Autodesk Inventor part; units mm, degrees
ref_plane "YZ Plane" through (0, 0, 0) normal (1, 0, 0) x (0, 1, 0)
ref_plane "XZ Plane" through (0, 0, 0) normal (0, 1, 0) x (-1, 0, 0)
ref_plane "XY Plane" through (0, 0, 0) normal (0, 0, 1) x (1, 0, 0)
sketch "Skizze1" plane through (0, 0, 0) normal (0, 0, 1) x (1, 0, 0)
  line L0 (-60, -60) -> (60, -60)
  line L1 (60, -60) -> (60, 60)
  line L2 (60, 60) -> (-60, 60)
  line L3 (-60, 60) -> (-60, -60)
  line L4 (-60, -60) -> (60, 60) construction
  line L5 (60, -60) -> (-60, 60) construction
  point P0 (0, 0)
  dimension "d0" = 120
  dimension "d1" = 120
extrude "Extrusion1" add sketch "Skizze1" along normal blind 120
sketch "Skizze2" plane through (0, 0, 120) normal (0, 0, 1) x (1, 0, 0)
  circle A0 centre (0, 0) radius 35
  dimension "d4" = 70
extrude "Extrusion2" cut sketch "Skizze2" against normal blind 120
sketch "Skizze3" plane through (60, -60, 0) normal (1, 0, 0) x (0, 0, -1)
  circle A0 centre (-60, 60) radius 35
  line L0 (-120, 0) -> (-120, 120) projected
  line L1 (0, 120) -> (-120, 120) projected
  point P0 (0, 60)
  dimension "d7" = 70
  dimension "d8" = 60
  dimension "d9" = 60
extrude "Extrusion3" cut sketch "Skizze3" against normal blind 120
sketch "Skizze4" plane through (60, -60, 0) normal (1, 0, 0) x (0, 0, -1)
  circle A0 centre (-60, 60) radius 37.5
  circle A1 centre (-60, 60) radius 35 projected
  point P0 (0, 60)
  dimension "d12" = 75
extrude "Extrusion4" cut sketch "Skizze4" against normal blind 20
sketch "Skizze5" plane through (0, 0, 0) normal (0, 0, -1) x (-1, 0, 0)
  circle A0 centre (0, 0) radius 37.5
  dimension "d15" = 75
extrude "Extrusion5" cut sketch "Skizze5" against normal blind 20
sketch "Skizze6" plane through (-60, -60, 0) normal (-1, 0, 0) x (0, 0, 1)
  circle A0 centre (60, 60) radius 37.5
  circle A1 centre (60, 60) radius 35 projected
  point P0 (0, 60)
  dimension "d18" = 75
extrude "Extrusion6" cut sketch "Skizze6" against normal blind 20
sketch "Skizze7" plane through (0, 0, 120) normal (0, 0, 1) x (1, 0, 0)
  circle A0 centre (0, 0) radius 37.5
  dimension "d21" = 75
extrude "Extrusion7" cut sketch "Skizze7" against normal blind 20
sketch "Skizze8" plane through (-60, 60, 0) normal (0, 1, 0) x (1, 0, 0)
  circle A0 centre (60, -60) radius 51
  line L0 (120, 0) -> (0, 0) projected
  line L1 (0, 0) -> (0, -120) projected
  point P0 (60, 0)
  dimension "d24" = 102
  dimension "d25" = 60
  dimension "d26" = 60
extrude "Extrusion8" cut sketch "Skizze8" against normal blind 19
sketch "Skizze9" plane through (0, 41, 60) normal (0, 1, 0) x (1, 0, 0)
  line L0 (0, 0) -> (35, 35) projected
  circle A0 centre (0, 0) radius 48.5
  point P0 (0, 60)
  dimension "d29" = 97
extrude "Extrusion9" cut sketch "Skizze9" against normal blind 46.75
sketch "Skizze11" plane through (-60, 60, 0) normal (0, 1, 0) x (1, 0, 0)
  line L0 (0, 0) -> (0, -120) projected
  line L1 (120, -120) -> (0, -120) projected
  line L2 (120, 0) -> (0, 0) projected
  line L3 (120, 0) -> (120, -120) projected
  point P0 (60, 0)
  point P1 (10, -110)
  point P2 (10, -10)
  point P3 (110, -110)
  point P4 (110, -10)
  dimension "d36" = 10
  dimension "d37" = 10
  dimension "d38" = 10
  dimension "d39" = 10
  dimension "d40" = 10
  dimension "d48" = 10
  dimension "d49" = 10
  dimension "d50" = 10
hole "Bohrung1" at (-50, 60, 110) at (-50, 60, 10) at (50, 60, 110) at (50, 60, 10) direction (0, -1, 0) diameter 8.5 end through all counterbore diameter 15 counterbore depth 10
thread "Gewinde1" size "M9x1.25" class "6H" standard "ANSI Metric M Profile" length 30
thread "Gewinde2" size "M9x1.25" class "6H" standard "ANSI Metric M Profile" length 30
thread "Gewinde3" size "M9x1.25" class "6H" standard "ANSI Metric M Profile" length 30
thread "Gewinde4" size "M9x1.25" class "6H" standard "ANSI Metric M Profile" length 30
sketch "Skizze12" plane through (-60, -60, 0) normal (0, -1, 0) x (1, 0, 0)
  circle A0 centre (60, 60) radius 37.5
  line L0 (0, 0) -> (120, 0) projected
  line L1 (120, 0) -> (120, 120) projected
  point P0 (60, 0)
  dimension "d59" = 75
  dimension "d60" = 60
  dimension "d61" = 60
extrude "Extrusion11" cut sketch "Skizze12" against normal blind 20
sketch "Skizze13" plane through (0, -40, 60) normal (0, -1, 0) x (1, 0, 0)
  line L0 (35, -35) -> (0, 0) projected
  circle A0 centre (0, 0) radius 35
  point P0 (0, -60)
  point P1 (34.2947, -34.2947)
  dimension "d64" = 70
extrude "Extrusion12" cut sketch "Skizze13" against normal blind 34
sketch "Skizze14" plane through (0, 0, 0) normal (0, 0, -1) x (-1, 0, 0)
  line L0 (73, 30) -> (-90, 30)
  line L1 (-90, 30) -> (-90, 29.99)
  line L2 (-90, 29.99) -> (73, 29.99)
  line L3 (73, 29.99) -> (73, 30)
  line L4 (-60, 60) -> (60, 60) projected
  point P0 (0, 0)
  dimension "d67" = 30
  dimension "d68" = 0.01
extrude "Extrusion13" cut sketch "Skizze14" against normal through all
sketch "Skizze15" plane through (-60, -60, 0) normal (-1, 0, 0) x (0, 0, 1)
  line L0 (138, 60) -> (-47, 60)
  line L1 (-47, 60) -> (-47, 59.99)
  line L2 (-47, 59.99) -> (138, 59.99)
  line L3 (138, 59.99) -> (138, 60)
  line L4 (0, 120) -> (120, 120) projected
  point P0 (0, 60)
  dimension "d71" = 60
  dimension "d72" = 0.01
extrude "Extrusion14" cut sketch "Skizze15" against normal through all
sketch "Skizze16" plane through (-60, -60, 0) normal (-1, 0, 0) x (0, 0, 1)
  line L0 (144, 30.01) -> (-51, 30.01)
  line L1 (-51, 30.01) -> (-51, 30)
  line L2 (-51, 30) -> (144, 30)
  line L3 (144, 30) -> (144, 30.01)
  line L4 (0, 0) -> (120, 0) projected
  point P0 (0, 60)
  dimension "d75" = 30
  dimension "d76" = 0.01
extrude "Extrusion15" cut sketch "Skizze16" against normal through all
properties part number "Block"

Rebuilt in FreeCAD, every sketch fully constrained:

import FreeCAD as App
import Part
import Sketcher

V = App.Vector


def add_polygon(sketch, points):
    """Adds a closed chain of lines whose ends are joined by coincident constraints."""
    first, n = sketch.GeometryCount, len(points)
    for a, b in zip(points, points[1:] + points[:1]):
        sketch.addGeometry(Part.LineSegment(App.Vector(*a, 0), App.Vector(*b, 0)), False)
    for i in range(n):
        sketch.addConstraint(Sketcher.Constraint("Coincident", first + i, 2, first + (i + 1) % n, 1))

doc = App.newDocument("Part")
body = doc.addObject("PartDesign::Body", "Body")
body.AllowCompound = True

# Sketch on XY plane
sketch1 = doc.addObject("Sketcher::SketchObject", "Sketch")
body.addObject(sketch1)
sketch1.AttachmentSupport = (doc.XY_Plane, [""])
sketch1.MapMode = "FlatFace"
add_polygon(sketch1, [(-60, 60), (-60, -60), (60, -60), (60, 60)])  # lines 0-3
sketch1.addConstraint([
    Sketcher.Constraint("Vertical", 0),
    Sketcher.Constraint("Horizontal", 1),
    Sketcher.Constraint("Vertical", 2),
    Sketcher.Constraint("Horizontal", 3),
    Sketcher.Constraint("Symmetric", 0, 2, 2, 2, -1, 1),
    Sketcher.Constraint("Equal", 3, 0),
    Sketcher.Constraint("DistanceX", 1, 1, 1, 2, 120.0),
])
pad1 = doc.addObject("PartDesign::Pad", "Pad")
body.addObject(pad1)
pad1.Profile = sketch1
pad1.Length = 120

# Sketch on XY plane
sketch2 = doc.addObject("Sketcher::SketchObject", "Sketch001")
body.addObject(sketch2)
sketch2.AttachmentSupport = (doc.XY_Plane, [""])
sketch2.MapMode = "FlatFace"
sketch2.AttachmentOffset = App.Placement(V(0, 0, 120), App.Rotation())
sketch2.addGeometry(Part.Circle(V(0, 0, 0), V(0, 0, 1), 35), False)
sketch2.addConstraint([
    Sketcher.Constraint("Coincident", 0, 3, -1, 1),
    Sketcher.Constraint("Diameter", 0, 70.0),
])
pocket1 = doc.addObject("PartDesign::Pocket", "Pocket")
body.addObject(pocket1)
pocket1.Profile = sketch2
pocket1.Length = 120

# Sketch on YZ plane
sketch3 = doc.addObject("Sketcher::SketchObject", "Sketch002")
body.addObject(sketch3)
sketch3.AttachmentSupport = (doc.YZ_Plane, [""])
sketch3.MapMode = "FlatFace"
sketch3.AttachmentOffset = App.Placement(V(0, 0, 60), App.Rotation())
sketch3.addGeometry(Part.Circle(V(0, 60, 0), V(0, 0, 1), 35), False)
sketch3.addConstraint([
    Sketcher.Constraint("PointOnObject", 0, 3, -2),
    Sketcher.Constraint("Diameter", 0, 70.0),
    Sketcher.Constraint("DistanceY", -1, 1, 0, 3, 60.0),
])
pocket2 = doc.addObject("PartDesign::Pocket", "Pocket001")
body.addObject(pocket2)
pocket2.Profile = sketch3
pocket2.Length = 120

# Sketch on YZ plane
sketch4 = doc.addObject("Sketcher::SketchObject", "Sketch003")
body.addObject(sketch4)
sketch4.AttachmentSupport = (doc.YZ_Plane, [""])
sketch4.MapMode = "FlatFace"
sketch4.AttachmentOffset = App.Placement(V(0, 0, 60), App.Rotation())
sketch4.addGeometry([
    Part.Circle(V(0, 60, 0), V(0, 0, 1), 38),
    Part.Circle(V(0, 60, 0), V(0, 0, 1), 35),
], False)
sketch4.addConstraint([
    Sketcher.Constraint("Coincident", 1, 3, 0, 3),
    Sketcher.Constraint("PointOnObject", 0, 3, -2),
    Sketcher.Constraint("Diameter", 0, 75.0),
    Sketcher.Constraint("Diameter", 1, 70.0),
    Sketcher.Constraint("DistanceY", -1, 1, 0, 3, 60.0),
])
pocket3 = doc.addObject("PartDesign::Pocket", "Pocket002")
body.addObject(pocket3)
pocket3.Profile = sketch4
pocket3.Length = 20

# Sketch on XY plane
sketch5 = doc.addObject("Sketcher::SketchObject", "Sketch004")
body.addObject(sketch5)
sketch5.AttachmentSupport = (doc.XY_Plane, [""])
sketch5.MapMode = "FlatFace"
sketch5.addGeometry(Part.Circle(V(0, 0, 0), V(0, 0, 1), 38), False)
sketch5.addConstraint([
    Sketcher.Constraint("Coincident", 0, 3, -1, 1),
    Sketcher.Constraint("Diameter", 0, 75.0),
])
pocket4 = doc.addObject("PartDesign::Pocket", "Pocket003")
body.addObject(pocket4)
pocket4.Profile = sketch5
pocket4.Length = 20
pocket4.Reversed = True

# Sketch on YZ plane
sketch6 = doc.addObject("Sketcher::SketchObject", "Sketch005")
body.addObject(sketch6)
sketch6.AttachmentSupport = (doc.YZ_Plane, [""])
sketch6.MapMode = "FlatFace"
sketch6.AttachmentOffset = App.Placement(V(0, 0, -60), App.Rotation())
sketch6.addGeometry([
    Part.Circle(V(0, 60, 0), V(0, 0, 1), 38),
    Part.Circle(V(0, 60, 0), V(0, 0, 1), 35),
], False)
sketch6.addConstraint([
    Sketcher.Constraint("Coincident", 1, 3, 0, 3),
    Sketcher.Constraint("PointOnObject", 0, 3, -2),
    Sketcher.Constraint("Diameter", 0, 75.0),
    Sketcher.Constraint("Diameter", 1, 70.0),
    Sketcher.Constraint("DistanceY", -1, 1, 0, 3, 60.0),
])
pocket5 = doc.addObject("PartDesign::Pocket", "Pocket004")
body.addObject(pocket5)
pocket5.Profile = sketch6
pocket5.Length = 20
pocket5.Reversed = True

# Sketch on XY plane
sketch7 = doc.addObject("Sketcher::SketchObject", "Sketch006")
body.addObject(sketch7)
sketch7.AttachmentSupport = (doc.XY_Plane, [""])
sketch7.MapMode = "FlatFace"
sketch7.AttachmentOffset = App.Placement(V(0, 0, 120), App.Rotation())
sketch7.addGeometry(Part.Circle(V(0, 0, 0), V(0, 0, 1), 38), False)
sketch7.addConstraint([
    Sketcher.Constraint("Coincident", 0, 3, -1, 1),
    Sketcher.Constraint("Diameter", 0, 75.0),
])
pocket6 = doc.addObject("PartDesign::Pocket", "Pocket005")
body.addObject(pocket6)
pocket6.Profile = sketch7
pocket6.Length = 20

# Sketch on XZ plane
sketch8 = doc.addObject("Sketcher::SketchObject", "Sketch007")
body.addObject(sketch8)
sketch8.AttachmentSupport = (doc.XZ_Plane, [""])
sketch8.MapMode = "FlatFace"
sketch8.AttachmentOffset = App.Placement(V(0, 0, -60), App.Rotation())
sketch8.addGeometry(Part.Circle(V(0, 60, 0), V(0, 0, 1), 51), False)
sketch8.addConstraint([
    Sketcher.Constraint("PointOnObject", 0, 3, -2),
    Sketcher.Constraint("Diameter", 0, 102.0),
    Sketcher.Constraint("DistanceY", -1, 1, 0, 3, 60.0),
])
pocket7 = doc.addObject("PartDesign::Pocket", "Pocket006")
body.addObject(pocket7)
pocket7.Profile = sketch8
pocket7.Length = 19
pocket7.Reversed = True

# Sketch on XZ plane
sketch9 = doc.addObject("Sketcher::SketchObject", "Sketch008")
body.addObject(sketch9)
sketch9.AttachmentSupport = (doc.XZ_Plane, [""])
sketch9.MapMode = "FlatFace"
sketch9.AttachmentOffset = App.Placement(V(0, 0, -41), App.Rotation())
sketch9.addGeometry(Part.Circle(V(0, 60, 0), V(0, 0, 1), 48), False)
sketch9.addConstraint([
    Sketcher.Constraint("PointOnObject", 0, 3, -2),
    Sketcher.Constraint("Diameter", 0, 97.0),
    Sketcher.Constraint("DistanceY", -1, 1, 0, 3, 60.0),
])
pocket8 = doc.addObject("PartDesign::Pocket", "Pocket007")
body.addObject(pocket8)
pocket8.Profile = sketch9
pocket8.Length = 46.75
pocket8.Reversed = True

# Sketch on XZ plane
sketch10 = doc.addObject("Sketcher::SketchObject", "Sketch009")
body.addObject(sketch10)
sketch10.AttachmentSupport = (doc.XZ_Plane, [""])
sketch10.MapMode = "FlatFace"
sketch10.AttachmentOffset = App.Placement(V(0, 0, -60), App.Rotation())
sketch10.addGeometry([
    Part.Circle(V(-50, 110, 0), V(0, 0, 1), 4.2),
    Part.Circle(V(-50, 10, 0), V(0, 0, 1), 4.2),
    Part.Circle(V(50, 110, 0), V(0, 0, 1), 4.2),
    Part.Circle(V(50, 10, 0), V(0, 0, 1), 4.2),
], False)
sketch10.addConstraint([
    Sketcher.Constraint("Equal", 0, 1),
    Sketcher.Constraint("Equal", 1, 2),
    Sketcher.Constraint("Equal", 2, 3),
    Sketcher.Constraint("Symmetric", 0, 3, 2, 3, -2),
    Sketcher.Constraint("Symmetric", 1, 3, 3, 3, -2),
    Sketcher.Constraint("Vertical", 0, 3, 1, 3),
    Sketcher.Constraint("Diameter", 0, 8.5),
    Sketcher.Constraint("DistanceX", 0, 3, -1, 1, 50.0),
    Sketcher.Constraint("DistanceY", -1, 1, 0, 3, 110.0),
    Sketcher.Constraint("DistanceY", -1, 1, 1, 3, 10.0),
])
doc.recompute()
hole = doc.addObject("PartDesign::Hole", "Hole")
body.addObject(hole)
hole.Profile = sketch10
hole.ThreadType = "None"
hole.Diameter = 8.5
hole.DepthType = "ThroughAll"
hole.HoleCutType = "Counterbore"
hole.HoleCutDiameter = 15
hole.HoleCutDepth = 10
hole.Reversed = True

# Sketch on XZ plane
sketch11 = doc.addObject("Sketcher::SketchObject", "Sketch010")
body.addObject(sketch11)
sketch11.AttachmentSupport = (doc.XZ_Plane, [""])
sketch11.MapMode = "FlatFace"
sketch11.AttachmentOffset = App.Placement(V(0, 0, 60), App.Rotation())
sketch11.addGeometry(Part.Circle(V(0, 60, 0), V(0, 0, 1), 38), False)
sketch11.addConstraint([
    Sketcher.Constraint("PointOnObject", 0, 3, -2),
    Sketcher.Constraint("Diameter", 0, 75.0),
    Sketcher.Constraint("DistanceY", -1, 1, 0, 3, 60.0),
])
pocket9 = doc.addObject("PartDesign::Pocket", "Pocket008")
body.addObject(pocket9)
pocket9.Profile = sketch11
pocket9.Length = 20

# Sketch on XZ plane
sketch12 = doc.addObject("Sketcher::SketchObject", "Sketch011")
body.addObject(sketch12)
sketch12.AttachmentSupport = (doc.XZ_Plane, [""])
sketch12.MapMode = "FlatFace"
sketch12.AttachmentOffset = App.Placement(V(0, 0, 40), App.Rotation())
sketch12.addGeometry(Part.Circle(V(0, 60, 0), V(0, 0, 1), 35), False)
sketch12.addConstraint([
    Sketcher.Constraint("PointOnObject", 0, 3, -2),
    Sketcher.Constraint("Diameter", 0, 70.0),
    Sketcher.Constraint("DistanceY", -1, 1, 0, 3, 60.0),
])
pocket10 = doc.addObject("PartDesign::Pocket", "Pocket009")
body.addObject(pocket10)
pocket10.Profile = sketch12
pocket10.Length = 34

# Sketch on XY plane
sketch13 = doc.addObject("Sketcher::SketchObject", "Sketch012")
body.addObject(sketch13)
sketch13.AttachmentSupport = (doc.XY_Plane, [""])
sketch13.MapMode = "FlatFace"
add_polygon(sketch13, [(-73, 29.99), (-73, 30), (90, 30), (90, 29.99)])  # lines 0-3
sketch13.addConstraint([
    Sketcher.Constraint("Vertical", 0),
    Sketcher.Constraint("Horizontal", 1),
    Sketcher.Constraint("Vertical", 2),
    Sketcher.Constraint("Horizontal", 3),
    Sketcher.Constraint("DistanceY", -1, 1, 0, 2, 30.0),
    Sketcher.Constraint("DistanceY", 0, 1, 0, 2, 0.01),
    Sketcher.Constraint("DistanceX", 1, 1, 1, 2, 163.0),
    Sketcher.Constraint("DistanceX", 0, 2, -1, 1, 73.0),
])
pocket11 = doc.addObject("PartDesign::Pocket", "Pocket010")
body.addObject(pocket11)
pocket11.Profile = sketch13
pocket11.Type = "ThroughAll"
pocket11.Reversed = True

# Sketch on YZ plane
sketch14 = doc.addObject("Sketcher::SketchObject", "Sketch013")
body.addObject(sketch14)
sketch14.AttachmentSupport = (doc.YZ_Plane, [""])
sketch14.MapMode = "FlatFace"
sketch14.AttachmentOffset = App.Placement(V(0, 0, -60), App.Rotation())
add_polygon(sketch14, [(-0.01, 138), (0, 138), (0, -47), (-0.01, -47)])  # lines 0-3
sketch14.addConstraint([
    Sketcher.Constraint("Horizontal", 0),
    Sketcher.Constraint("Vertical", 1),
    Sketcher.Constraint("Horizontal", 2),
    Sketcher.Constraint("Vertical", 3),
    Sketcher.Constraint("PointOnObject", 0, 2, -2),
    Sketcher.Constraint("DistanceX", 0, 1, 0, 2, 0.01),
    Sketcher.Constraint("DistanceY", 1, 2, 1, 1, 185.0),
    Sketcher.Constraint("DistanceY", -1, 1, 0, 2, 138.0),
])
pocket12 = doc.addObject("PartDesign::Pocket", "Pocket011")
body.addObject(pocket12)
pocket12.Profile = sketch14
pocket12.Type = "ThroughAll"
pocket12.Reversed = True

# Sketch on YZ plane
sketch15 = doc.addObject("Sketcher::SketchObject", "Sketch014")
body.addObject(sketch15)
sketch15.AttachmentSupport = (doc.YZ_Plane, [""])
sketch15.MapMode = "FlatFace"
sketch15.AttachmentOffset = App.Placement(V(0, 0, -60), App.Rotation())
add_polygon(sketch15, [(-30, 144), (-29.99, 144), (-29.99, -51), (-30, -51)])  # lines 0-3
sketch15.addConstraint([
    Sketcher.Constraint("Horizontal", 0),
    Sketcher.Constraint("Vertical", 1),
    Sketcher.Constraint("Horizontal", 2),
    Sketcher.Constraint("Vertical", 3),
    Sketcher.Constraint("DistanceX", 2, 2, -1, 1, 30.0),
    Sketcher.Constraint("DistanceX", 0, 1, 0, 2, 0.01),
    Sketcher.Constraint("DistanceY", 1, 2, 1, 1, 195.0),
    Sketcher.Constraint("DistanceY", -1, 1, 0, 2, 144.0),
])
pocket13 = doc.addObject("PartDesign::Pocket", "Pocket012")
body.addObject(pocket13)
pocket13.Profile = sketch15
pocket13.Type = "ThroughAll"
pocket13.Reversed = True

doc.recompute()
